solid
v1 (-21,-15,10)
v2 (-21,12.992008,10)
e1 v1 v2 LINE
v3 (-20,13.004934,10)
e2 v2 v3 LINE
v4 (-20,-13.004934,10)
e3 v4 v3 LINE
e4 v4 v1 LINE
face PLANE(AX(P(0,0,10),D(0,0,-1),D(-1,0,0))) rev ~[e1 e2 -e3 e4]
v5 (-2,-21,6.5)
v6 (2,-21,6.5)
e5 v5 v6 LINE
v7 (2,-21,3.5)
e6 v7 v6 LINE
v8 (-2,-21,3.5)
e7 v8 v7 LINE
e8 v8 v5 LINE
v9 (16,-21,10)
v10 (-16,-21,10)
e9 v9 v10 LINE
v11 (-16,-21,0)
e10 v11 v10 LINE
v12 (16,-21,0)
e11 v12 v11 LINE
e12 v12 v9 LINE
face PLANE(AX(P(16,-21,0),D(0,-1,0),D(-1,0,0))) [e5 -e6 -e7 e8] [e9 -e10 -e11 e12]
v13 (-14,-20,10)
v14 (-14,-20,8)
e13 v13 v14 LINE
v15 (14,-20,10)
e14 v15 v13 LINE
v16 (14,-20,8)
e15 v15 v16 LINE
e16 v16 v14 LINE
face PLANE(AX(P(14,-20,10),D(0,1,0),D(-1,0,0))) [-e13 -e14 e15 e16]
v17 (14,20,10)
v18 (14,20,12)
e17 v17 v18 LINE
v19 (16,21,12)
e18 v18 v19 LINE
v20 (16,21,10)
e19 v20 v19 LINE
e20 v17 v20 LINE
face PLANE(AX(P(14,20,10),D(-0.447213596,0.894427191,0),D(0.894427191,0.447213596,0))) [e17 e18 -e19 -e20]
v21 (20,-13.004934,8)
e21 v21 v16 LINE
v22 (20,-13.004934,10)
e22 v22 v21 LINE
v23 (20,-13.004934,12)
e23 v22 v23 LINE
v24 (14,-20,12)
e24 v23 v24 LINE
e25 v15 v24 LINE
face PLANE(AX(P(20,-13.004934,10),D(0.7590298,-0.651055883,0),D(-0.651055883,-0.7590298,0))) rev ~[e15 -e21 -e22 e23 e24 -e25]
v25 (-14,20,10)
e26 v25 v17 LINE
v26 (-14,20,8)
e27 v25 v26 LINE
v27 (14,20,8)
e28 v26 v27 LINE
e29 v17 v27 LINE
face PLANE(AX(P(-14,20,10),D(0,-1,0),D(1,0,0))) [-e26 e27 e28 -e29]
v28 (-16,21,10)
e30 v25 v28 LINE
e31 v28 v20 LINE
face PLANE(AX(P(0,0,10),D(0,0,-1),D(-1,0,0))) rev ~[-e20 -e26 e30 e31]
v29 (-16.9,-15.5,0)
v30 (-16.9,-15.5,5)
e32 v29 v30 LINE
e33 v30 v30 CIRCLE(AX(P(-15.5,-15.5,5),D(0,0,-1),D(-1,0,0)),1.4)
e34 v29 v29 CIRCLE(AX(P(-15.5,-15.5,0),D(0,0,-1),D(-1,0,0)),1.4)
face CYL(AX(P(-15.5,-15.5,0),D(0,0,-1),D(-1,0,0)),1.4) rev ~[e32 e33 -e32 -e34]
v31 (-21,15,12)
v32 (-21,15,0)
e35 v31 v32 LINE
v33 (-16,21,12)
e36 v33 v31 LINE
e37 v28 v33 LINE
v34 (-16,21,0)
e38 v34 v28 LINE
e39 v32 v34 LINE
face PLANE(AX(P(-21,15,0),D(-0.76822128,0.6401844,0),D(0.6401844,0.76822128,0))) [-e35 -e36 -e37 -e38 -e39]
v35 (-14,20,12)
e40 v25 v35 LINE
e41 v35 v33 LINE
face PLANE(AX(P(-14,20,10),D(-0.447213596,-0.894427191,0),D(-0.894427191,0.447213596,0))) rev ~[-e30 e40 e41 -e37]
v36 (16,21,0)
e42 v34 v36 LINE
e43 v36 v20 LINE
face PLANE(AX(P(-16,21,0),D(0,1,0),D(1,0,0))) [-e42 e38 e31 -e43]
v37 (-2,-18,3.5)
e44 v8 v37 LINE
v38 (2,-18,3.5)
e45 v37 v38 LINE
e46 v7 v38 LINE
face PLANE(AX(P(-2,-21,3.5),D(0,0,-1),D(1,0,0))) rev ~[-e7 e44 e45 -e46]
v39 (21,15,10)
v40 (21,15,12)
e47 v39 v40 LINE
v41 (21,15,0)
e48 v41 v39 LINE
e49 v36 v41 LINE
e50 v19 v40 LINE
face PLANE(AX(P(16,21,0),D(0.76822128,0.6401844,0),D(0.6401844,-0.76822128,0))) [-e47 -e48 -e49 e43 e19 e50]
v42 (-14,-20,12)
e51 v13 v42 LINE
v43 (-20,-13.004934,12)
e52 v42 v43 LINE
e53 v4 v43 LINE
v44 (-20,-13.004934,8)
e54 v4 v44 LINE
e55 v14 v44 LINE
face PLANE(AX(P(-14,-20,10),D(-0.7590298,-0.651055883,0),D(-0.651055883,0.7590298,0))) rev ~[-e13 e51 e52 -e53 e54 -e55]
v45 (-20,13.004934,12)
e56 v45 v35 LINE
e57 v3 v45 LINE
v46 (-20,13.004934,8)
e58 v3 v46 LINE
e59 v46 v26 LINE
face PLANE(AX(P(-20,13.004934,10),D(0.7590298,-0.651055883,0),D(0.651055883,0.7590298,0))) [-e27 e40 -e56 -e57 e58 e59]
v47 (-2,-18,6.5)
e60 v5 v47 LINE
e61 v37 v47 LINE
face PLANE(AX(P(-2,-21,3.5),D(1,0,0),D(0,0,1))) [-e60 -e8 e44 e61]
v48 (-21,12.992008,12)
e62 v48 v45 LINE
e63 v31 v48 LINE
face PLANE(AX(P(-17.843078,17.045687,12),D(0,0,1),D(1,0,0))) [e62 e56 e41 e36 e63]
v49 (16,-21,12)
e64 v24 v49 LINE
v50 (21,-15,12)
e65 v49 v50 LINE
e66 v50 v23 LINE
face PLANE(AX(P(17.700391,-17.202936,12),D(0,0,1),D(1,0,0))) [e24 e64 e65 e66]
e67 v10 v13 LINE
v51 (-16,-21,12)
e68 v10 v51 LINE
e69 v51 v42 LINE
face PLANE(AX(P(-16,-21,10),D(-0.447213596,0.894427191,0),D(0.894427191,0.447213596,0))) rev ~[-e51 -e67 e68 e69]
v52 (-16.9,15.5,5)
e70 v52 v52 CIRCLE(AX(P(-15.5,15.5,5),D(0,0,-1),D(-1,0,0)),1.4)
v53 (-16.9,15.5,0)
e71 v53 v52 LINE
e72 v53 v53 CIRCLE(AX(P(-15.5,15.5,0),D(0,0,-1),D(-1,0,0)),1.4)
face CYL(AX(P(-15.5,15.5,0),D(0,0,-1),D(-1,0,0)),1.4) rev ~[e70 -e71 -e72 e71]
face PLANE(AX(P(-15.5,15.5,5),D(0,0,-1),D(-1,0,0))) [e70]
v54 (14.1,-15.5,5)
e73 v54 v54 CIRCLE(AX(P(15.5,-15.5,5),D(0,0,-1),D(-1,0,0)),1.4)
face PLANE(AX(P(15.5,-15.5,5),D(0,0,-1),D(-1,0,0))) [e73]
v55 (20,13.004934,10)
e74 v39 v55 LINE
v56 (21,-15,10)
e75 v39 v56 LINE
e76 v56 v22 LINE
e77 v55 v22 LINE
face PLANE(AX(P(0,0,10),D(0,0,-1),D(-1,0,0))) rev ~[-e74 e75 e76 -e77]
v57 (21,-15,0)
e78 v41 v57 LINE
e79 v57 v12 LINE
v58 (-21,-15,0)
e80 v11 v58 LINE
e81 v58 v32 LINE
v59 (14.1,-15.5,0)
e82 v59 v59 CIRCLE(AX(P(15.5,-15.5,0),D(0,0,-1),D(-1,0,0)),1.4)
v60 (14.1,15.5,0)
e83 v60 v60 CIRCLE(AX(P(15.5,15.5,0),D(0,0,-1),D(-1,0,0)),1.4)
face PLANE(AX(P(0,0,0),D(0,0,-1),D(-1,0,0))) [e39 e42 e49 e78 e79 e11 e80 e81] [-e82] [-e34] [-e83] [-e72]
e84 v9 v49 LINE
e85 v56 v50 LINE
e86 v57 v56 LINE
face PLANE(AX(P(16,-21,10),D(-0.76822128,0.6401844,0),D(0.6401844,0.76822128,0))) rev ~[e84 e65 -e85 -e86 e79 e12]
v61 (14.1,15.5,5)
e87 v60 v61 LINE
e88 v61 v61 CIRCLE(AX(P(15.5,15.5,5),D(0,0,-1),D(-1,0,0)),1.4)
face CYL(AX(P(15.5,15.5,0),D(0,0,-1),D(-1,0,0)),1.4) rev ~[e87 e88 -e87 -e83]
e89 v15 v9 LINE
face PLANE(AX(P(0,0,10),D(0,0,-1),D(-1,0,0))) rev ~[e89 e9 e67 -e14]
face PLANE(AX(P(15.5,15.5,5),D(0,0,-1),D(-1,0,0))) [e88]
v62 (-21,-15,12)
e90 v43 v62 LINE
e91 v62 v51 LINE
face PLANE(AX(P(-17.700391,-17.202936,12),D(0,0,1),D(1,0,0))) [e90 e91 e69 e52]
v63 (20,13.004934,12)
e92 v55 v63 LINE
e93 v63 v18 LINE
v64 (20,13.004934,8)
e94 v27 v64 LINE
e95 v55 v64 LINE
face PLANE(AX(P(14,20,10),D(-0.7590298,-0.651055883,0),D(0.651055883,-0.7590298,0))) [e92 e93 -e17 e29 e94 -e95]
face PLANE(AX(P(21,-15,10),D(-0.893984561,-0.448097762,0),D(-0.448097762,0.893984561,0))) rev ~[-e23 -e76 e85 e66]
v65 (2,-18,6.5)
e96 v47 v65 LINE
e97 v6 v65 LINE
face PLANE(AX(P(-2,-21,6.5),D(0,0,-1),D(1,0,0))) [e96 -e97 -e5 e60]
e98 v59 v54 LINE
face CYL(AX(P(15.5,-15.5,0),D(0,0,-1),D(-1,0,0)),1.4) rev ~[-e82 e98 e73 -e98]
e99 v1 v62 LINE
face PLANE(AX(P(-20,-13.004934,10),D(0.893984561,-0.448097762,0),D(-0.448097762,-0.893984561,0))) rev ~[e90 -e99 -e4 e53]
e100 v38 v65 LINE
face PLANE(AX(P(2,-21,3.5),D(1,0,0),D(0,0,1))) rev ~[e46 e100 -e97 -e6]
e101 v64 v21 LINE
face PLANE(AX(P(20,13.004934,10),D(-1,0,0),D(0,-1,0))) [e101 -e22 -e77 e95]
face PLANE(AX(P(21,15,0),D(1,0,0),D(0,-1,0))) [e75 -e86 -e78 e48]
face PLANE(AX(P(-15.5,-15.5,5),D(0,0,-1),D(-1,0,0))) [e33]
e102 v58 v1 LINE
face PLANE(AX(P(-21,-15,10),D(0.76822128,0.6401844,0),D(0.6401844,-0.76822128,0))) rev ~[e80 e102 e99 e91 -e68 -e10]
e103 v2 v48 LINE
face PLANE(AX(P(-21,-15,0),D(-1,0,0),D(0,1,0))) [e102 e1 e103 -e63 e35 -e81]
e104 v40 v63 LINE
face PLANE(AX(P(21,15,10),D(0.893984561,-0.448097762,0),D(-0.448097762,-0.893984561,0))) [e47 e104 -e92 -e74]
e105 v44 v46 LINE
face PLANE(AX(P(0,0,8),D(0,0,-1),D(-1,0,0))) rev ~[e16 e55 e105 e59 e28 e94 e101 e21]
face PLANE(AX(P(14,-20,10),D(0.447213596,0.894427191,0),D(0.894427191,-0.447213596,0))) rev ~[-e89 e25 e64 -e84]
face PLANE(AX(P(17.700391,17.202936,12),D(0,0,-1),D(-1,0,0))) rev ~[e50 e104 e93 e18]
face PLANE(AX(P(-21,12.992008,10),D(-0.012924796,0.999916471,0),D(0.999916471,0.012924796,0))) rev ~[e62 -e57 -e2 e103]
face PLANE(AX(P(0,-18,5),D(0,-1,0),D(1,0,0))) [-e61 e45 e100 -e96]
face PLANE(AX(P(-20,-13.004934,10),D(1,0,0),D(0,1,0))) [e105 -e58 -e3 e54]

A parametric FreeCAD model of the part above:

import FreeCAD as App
import Part
import Sketcher


def add_polygon(sketch, points):
    """Adds a closed chain of lines whose ends are joined by coincident constraints."""
    first, n = sketch.GeometryCount, len(points)
    for a, b in zip(points, points[1:] + points[:1]):
        sketch.addGeometry(Part.LineSegment(App.Vector(*a, 0), App.Vector(*b, 0)), False)
    for i in range(n):
        sketch.addConstraint(Sketcher.Constraint("Coincident", first + i, 2, first + (i + 1) % n, 1))

doc = App.newDocument("Part")
body = doc.addObject("PartDesign::Body", "Body")

# Sketch on XY plane
sketch1 = body.newObject("Sketcher::SketchObject", "Sketch")
sketch1.AttachmentSupport = (doc.getObject("XY_Plane"), [""])
sketch1.MapMode = "FlatFace"
add_polygon(sketch1, [(16, 21), (-16, 21), (-21, 15), (-21, -15), (-16, -21), (16, -21), (21, -15), (21, 15)])  # lines 0-7
sketch1.addConstraint([
    Sketcher.Constraint("Horizontal", 0),
    Sketcher.Constraint("Vertical", 2),
    Sketcher.Constraint("Horizontal", 4),
    Sketcher.Constraint("Vertical", 6),
    Sketcher.Constraint("Symmetric", 0, 2, 4, 2, -1, 1),
    Sketcher.Constraint("Symmetric", 1, 2, 5, 2, -1, 1),
    Sketcher.Constraint("Parallel", 3, 7),
    Sketcher.Constraint("Horizontal", 2, 2, 5, 2),
    Sketcher.Constraint("Horizontal", 1, 2, 6, 2),
    Sketcher.Constraint("Vertical", 0, 2, 3, 2),
    Sketcher.Constraint("DistanceX", 0, 2, 0, 1, 32.0),
    Sketcher.Constraint("DistanceY", 2, 2, 2, 1, 30.0),
    Sketcher.Constraint("DistanceY", -1, 1, 0, 2, 21.0),
    Sketcher.Constraint("DistanceX", 1, 2, -1, 1, 21.0),
])
pad1 = body.newObject("PartDesign::Pad", "Pad")
pad1.Profile = sketch1
pad1.Length = 10

# Sketch on XY plane
sketch2 = body.newObject("Sketcher::SketchObject", "Sketch001")
sketch2.AttachmentSupport = (doc.getObject("XY_Plane"), [""])
sketch2.MapMode = "FlatFace"
sketch2.AttachmentOffset = App.Placement(App.Vector(0, 0, 10), App.Rotation())
add_polygon(sketch2, [(14, 20), (-14, 20), (-20, 13), (-20, -13), (-14, -20), (14, -20), (20, -13), (20, 13)])  # lines 0-7
sketch2.addConstraint([
    Sketcher.Constraint("Horizontal", 0),
    Sketcher.Constraint("Vertical", 2),
    Sketcher.Constraint("Horizontal", 4),
    Sketcher.Constraint("Vertical", 6),
    Sketcher.Constraint("Symmetric", 0, 2, 4, 2, -1, 1),
    Sketcher.Constraint("Symmetric", 1, 2, 5, 2, -1, 1),
    Sketcher.Constraint("Parallel", 3, 7),
    Sketcher.Constraint("Horizontal", 2, 2, 5, 2),
    Sketcher.Constraint("Horizontal", 1, 2, 6, 2),
    Sketcher.Constraint("Vertical", 0, 2, 3, 2),
    Sketcher.Constraint("DistanceX", 0, 2, 0, 1, 28.0),
    Sketcher.Constraint("DistanceY", -1, 1, 0, 2, 20.0),
    Sketcher.Constraint("DistanceX", 1, 2, -1, 1, 20.0),
    Sketcher.Constraint("Distance", 1, 9.215799),
])
pocket1 = body.newObject("PartDesign::Pocket", "Pocket")
pocket1.Profile = sketch2
pocket1.Length = 2

# Sketch on XY plane
sketch3 = body.newObject("Sketcher::SketchObject", "Sketch002")
sketch3.AttachmentSupport = (doc.getObject("XY_Plane"), [""])
sketch3.MapMode = "FlatFace"
sketch3.AttachmentOffset = App.Placement(App.Vector(0, 0, 10), App.Rotation())
add_polygon(sketch3, [(-16, -21), (-14, -20), (-20, -13), (-21, -15)])  # lines 0-3
add_polygon(sketch3, [(-20, 13), (-14, 20), (-16, 21), (-21, 15), (-21, 13)])  # lines 4-8
add_polygon(sketch3, [(21, 15), (16, 21), (14, 20), (20, 13)])  # lines 9-12
add_polygon(sketch3, [(16, -21), (21, -15), (20, -13), (14, -20)])  # lines 13-16
sketch3.addConstraint([
    Sketcher.Constraint("Vertical", 7),
    Sketcher.Constraint("Symmetric", 3, 2, 9, 2, -1, 1),
    Sketcher.Constraint("Symmetric", 0, 2, 10, 2, -1, 1),
    Sketcher.Constraint("Symmetric", 1, 2, 11, 2, -1, 1),
    Sketcher.Constraint("Symmetric", 2, 2, 12, 2, -1, 1),
    Sketcher.Constraint("Symmetric", 6, 2, 13, 2, -1, 1),
    Sketcher.Constraint("Symmetric", 8, 2, 14, 2, -1, 1),
    Sketcher.Constraint("Symmetric", 4, 2, 15, 2, -1, 1),
    Sketcher.Constraint("Symmetric", 5, 2, 16, 2, -1, 1),
    Sketcher.Constraint("Symmetric", 5, 2, 9, 2, -2),
    Sketcher.Constraint("Symmetric", 4, 2, 10, 2, -2),
    Sketcher.Constraint("Symmetric", 8, 2, 11, 2, -2),
    Sketcher.Constraint("Symmetric", 6, 2, 12, 2, -2),
    Sketcher.Constraint("DistanceX", 0, 2, -1, 1, 14.0),
    Sketcher.Constraint("DistanceY", 0, 2, -1, 1, 20.0),
    Sketcher.Constraint("DistanceX", 1, 2, -1, 1, 20.0),
    Sketcher.Constraint("DistanceX", 2, 2, -1, 1, 21.0),
    Sketcher.Constraint("DistanceY", 2, 2, -1, 1, 15.0),
    Sketcher.Constraint("DistanceX", 3, 2, -1, 1, 16.0),
    Sketcher.Constraint("DistanceY", 3, 2, -1, 1, 21.0),
    Sketcher.Constraint("Distance", 1, 9.215799),
    Sketcher.Constraint("DistanceY", 7, 2, 7, 1, 2.007992),
])
pad2 = body.newObject("PartDesign::Pad", "Pad001")
pad2.Profile = sketch3
pad2.Length = 2

# Sketch on XZ plane
sketch4 = body.newObject("Sketcher::SketchObject", "Sketch003")
sketch4.AttachmentSupport = (doc.getObject("XZ_Plane"), [""])
sketch4.MapMode = "FlatFace"
sketch4.AttachmentOffset = App.Placement(App.Vector(0, 0, 21), App.Rotation())
add_polygon(sketch4, [(-2, 6.5), (-2, 3.5), (2, 3.5), (2, 6.5)])  # lines 0-3
sketch4.addConstraint([
    Sketcher.Constraint("Vertical", 0),
    Sketcher.Constraint("Horizontal", 1),
    Sketcher.Constraint("Vertical", 2),
    Sketcher.Constraint("Horizontal", 3),
    Sketcher.Constraint("DistanceX", 1, 1, 1, 2, 4.0),
    Sketcher.Constraint("DistanceY", 0, 2, 0, 1, 3.0),
    Sketcher.Constraint("DistanceX", 0, 2, -1, 1, 2.0),
    Sketcher.Constraint("DistanceY", -1, 1, 0, 2, 3.5),
])
pocket2 = body.newObject("PartDesign::Pocket", "Pocket001")
pocket2.Profile = sketch4
pocket2.Length = 3

# Sketch on XY plane
sketch5 = body.newObject("Sketcher::SketchObject", "Sketch004")
sketch5.AttachmentSupport = (doc.getObject("XY_Plane"), [""])
sketch5.MapMode = "FlatFace"
sketch5.addGeometry([
    Part.Circle(App.Vector(-15.5, 15.5, 0), App.Vector(0, 0, 1), 1.4),
    Part.Circle(App.Vector(15.5, 15.5, 0), App.Vector(0, 0, 1), 1.4),
    Part.Circle(App.Vector(-15.5, -15.5, 0), App.Vector(0, 0, 1), 1.4),
    Part.Circle(App.Vector(15.5, -15.5, 0), App.Vector(0, 0, 1), 1.4),
], False)
sketch5.addConstraint([
    Sketcher.Constraint("Equal", 0, 1),
    Sketcher.Constraint("Equal", 1, 2),
    Sketcher.Constraint("Equal", 2, 3),
    Sketcher.Constraint("Symmetric", 1, 3, 2, 3, -1, 1),
    Sketcher.Constraint("Symmetric", 0, 3, 3, 3, -1, 1),
    Sketcher.Constraint("Symmetric", 0, 3, 1, 3, -2),
    Sketcher.Constraint("Diameter", 0, 2.8),
    Sketcher.Constraint("DistanceX", 0, 3, 1, 3, 31.0),
    Sketcher.Constraint("DistanceY", 2, 3, 0, 3, 31.0),
])
pocket3 = body.newObject("PartDesign::Pocket", "Pocket002")
pocket3.Profile = sketch5
pocket3.Length = 5
pocket3.Reversed = True

doc.recompute()
